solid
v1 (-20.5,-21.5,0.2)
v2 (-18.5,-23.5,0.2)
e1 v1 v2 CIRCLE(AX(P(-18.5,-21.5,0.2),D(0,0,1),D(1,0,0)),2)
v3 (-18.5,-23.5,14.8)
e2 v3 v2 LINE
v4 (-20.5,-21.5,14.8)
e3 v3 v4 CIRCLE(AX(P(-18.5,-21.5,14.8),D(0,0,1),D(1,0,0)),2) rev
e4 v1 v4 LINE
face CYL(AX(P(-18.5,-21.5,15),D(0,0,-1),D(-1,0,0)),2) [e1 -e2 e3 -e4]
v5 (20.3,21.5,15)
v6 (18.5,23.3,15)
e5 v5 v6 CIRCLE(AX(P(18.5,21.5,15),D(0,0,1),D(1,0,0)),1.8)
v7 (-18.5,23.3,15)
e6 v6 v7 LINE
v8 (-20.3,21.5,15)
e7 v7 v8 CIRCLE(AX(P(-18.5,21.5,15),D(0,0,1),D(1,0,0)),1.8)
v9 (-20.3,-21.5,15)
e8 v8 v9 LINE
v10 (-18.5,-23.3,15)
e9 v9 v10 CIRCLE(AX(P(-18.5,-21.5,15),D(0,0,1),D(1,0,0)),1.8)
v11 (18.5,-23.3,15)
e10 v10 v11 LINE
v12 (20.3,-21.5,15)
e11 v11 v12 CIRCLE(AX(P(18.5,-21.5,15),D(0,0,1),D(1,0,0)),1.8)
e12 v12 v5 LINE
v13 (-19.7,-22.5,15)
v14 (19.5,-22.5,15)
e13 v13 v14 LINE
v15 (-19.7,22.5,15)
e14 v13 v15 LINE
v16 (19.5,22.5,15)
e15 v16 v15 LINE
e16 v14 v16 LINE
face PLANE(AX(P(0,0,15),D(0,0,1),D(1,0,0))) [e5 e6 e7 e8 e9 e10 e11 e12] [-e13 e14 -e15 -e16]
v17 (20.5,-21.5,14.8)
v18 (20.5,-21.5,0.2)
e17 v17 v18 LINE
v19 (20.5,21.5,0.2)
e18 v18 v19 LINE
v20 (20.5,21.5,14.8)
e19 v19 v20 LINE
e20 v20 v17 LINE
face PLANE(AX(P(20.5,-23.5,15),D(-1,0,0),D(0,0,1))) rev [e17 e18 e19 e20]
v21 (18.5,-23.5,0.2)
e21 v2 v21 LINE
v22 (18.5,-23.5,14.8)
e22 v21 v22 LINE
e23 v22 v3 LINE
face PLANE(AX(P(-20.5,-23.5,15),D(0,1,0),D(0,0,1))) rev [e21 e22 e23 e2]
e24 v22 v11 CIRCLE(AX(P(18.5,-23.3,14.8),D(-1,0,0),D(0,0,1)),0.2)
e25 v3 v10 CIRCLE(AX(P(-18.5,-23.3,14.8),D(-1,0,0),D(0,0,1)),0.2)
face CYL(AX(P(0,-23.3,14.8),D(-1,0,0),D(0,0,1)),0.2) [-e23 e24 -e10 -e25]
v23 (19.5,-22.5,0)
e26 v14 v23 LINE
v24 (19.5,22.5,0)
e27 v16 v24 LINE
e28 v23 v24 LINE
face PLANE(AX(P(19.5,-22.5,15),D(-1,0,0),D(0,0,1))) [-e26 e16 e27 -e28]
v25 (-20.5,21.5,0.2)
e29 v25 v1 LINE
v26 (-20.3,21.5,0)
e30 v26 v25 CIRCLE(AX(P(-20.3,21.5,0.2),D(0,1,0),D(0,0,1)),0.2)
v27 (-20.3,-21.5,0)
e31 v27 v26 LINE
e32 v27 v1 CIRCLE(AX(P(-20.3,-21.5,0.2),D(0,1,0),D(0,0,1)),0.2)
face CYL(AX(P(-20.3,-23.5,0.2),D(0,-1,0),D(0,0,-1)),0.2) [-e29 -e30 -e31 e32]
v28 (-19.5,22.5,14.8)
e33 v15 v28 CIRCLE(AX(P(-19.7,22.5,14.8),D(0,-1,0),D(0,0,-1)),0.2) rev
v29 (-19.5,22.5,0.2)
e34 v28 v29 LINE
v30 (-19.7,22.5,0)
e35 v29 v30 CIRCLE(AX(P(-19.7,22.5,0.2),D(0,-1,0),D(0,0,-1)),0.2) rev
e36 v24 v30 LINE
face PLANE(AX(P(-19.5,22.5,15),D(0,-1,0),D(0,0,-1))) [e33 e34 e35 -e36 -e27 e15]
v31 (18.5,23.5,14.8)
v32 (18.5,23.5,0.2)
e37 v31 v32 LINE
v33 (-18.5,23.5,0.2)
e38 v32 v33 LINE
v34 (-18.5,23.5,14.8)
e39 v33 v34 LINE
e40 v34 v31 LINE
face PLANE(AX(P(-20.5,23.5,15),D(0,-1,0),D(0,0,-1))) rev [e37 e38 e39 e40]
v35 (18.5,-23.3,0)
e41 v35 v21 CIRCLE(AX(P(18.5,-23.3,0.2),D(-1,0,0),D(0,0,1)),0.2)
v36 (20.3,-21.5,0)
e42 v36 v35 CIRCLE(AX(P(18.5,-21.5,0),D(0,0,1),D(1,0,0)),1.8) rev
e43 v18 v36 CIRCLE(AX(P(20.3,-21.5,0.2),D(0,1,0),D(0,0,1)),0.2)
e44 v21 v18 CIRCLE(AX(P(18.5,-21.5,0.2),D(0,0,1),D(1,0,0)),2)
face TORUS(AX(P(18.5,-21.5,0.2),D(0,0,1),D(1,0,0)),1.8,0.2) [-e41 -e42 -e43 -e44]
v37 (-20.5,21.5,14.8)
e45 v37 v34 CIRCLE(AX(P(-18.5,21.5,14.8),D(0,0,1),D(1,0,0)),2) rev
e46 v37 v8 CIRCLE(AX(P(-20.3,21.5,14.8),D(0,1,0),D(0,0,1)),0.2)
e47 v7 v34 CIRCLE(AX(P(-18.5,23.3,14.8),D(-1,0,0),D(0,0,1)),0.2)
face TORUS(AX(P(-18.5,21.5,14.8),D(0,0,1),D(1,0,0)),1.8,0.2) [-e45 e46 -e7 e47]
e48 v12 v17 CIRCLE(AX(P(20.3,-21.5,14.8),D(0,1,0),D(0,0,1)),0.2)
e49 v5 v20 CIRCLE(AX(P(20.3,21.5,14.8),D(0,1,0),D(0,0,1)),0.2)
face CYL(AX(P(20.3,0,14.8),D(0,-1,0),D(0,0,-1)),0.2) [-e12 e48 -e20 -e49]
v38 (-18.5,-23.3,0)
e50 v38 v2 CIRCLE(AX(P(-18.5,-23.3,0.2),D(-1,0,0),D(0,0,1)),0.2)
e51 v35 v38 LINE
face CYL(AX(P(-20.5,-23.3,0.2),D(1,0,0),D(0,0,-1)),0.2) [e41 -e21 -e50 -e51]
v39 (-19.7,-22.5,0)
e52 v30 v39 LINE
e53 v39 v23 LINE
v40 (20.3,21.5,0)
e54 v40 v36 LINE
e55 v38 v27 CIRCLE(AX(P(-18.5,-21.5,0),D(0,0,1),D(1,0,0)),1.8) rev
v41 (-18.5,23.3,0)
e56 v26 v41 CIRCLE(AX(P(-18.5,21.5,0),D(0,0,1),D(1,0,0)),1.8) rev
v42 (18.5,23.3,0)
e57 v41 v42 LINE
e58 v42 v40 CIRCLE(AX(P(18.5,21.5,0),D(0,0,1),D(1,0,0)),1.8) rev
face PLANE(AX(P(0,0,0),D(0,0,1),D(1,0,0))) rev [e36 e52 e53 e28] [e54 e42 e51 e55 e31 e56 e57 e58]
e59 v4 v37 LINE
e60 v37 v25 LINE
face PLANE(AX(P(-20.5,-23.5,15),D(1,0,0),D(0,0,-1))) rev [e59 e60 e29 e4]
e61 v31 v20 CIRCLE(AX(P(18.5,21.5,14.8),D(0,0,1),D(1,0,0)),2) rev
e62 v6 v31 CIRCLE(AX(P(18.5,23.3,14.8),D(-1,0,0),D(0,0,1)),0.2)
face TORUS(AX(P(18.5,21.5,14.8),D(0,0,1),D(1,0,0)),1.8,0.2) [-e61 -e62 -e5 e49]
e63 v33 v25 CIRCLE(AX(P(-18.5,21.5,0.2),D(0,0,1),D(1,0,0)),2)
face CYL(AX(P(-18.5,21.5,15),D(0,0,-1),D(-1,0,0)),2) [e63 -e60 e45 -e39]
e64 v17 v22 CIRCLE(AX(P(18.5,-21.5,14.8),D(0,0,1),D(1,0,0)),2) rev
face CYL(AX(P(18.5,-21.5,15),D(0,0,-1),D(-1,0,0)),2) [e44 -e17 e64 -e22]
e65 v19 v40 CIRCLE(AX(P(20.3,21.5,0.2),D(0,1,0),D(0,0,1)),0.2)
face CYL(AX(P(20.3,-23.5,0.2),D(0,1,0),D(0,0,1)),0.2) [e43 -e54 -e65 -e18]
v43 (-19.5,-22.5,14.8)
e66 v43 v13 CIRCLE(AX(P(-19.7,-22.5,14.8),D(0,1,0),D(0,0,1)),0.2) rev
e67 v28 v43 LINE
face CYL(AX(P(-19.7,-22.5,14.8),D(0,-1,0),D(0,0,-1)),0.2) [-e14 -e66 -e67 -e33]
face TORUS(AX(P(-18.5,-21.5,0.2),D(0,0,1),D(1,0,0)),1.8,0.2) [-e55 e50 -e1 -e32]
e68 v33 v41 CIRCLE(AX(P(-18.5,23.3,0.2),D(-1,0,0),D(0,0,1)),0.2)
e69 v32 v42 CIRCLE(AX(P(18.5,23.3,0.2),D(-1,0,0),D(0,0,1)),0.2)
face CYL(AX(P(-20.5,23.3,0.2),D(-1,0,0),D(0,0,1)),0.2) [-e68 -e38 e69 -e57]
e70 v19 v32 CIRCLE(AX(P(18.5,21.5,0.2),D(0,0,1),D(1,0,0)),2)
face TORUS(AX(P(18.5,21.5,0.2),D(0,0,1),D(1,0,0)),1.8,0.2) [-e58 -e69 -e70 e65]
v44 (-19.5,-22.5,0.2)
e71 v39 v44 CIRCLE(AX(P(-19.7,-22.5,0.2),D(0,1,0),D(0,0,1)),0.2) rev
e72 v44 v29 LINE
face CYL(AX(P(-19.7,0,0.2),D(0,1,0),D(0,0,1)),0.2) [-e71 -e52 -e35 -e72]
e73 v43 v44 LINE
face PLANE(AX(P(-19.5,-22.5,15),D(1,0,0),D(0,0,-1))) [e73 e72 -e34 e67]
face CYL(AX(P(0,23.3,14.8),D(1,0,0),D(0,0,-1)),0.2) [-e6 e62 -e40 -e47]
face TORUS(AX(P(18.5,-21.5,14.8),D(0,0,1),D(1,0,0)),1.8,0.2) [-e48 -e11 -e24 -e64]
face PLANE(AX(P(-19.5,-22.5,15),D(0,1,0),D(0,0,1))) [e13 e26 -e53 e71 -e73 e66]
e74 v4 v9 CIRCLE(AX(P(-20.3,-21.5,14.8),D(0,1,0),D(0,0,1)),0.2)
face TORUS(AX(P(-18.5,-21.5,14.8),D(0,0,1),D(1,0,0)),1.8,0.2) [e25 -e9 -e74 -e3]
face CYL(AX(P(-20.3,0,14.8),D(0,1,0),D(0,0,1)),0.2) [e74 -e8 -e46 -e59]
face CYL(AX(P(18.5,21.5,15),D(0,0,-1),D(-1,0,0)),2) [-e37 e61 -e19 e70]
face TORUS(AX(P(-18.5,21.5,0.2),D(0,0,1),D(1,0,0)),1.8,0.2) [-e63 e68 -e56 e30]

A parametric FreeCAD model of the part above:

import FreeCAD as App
import Part
import Sketcher

V = App.Vector


def edges_at(feature, points):
    """Names of the edges that pass closest to the given points."""
    edges = feature.Shape.Edges
    near = lambda p: min(range(len(edges)), key=lambda i: edges[i].distToShape(Part.Vertex(*p))[0])
    return sorted({f"Edge{near(p) + 1}" for p in points})

doc = App.newDocument("Part")
body = doc.addObject("PartDesign::Body", "Body")

sketch1 = body.newObject("Sketcher::SketchObject", "Sketch")
sketch1.AttachmentSupport = (doc.getObject("XY_Plane"), [""])
sketch1.MapMode = "FlatFace"
sketch1.addGeometry(Part.LineSegment(V(-20, 24, 0), V(-20, -24, 0)), False)
sketch1.addGeometry(Part.LineSegment(V(-20, -24, 0), V(20, -24, 0)), False)
sketch1.addGeometry(Part.LineSegment(V(20, -24, 0), V(20, 24, 0)), False)
sketch1.addGeometry(Part.LineSegment(V(20, 24, 0), V(-20, 24, 0)), False)
sketch1.addGeometry(Part.LineSegment(V(20, -22, 0), V(-20, -22, 0)), False)
sketch1.addGeometry(Part.LineSegment(V(-20, -22, 0), V(-20, 22, 0)), False)
sketch1.addGeometry(Part.LineSegment(V(-20, 22, 0), V(20, 22, 0)), False)
sketch1.addGeometry(Part.LineSegment(V(20, 22, 0), V(20, -22, 0)), False)
sketch1.addConstraint(Sketcher.Constraint("Coincident", 0, 2, 1, 1))
sketch1.addConstraint(Sketcher.Constraint("Coincident", 1, 2, 2, 1))
sketch1.addConstraint(Sketcher.Constraint("Coincident", 2, 2, 3, 1))
sketch1.addConstraint(Sketcher.Constraint("Coincident", 3, 2, 0, 1))
sketch1.addConstraint(Sketcher.Constraint("Coincident", 4, 2, 5, 1))
sketch1.addConstraint(Sketcher.Constraint("Coincident", 5, 2, 6, 1))
sketch1.addConstraint(Sketcher.Constraint("Coincident", 6, 2, 7, 1))
sketch1.addConstraint(Sketcher.Constraint("Coincident", 7, 2, 4, 1))
sketch1.addConstraint(Sketcher.Constraint("Vertical", 0))
sketch1.addConstraint(Sketcher.Constraint("Horizontal", 1))
sketch1.addConstraint(Sketcher.Constraint("Vertical", 2))
sketch1.addConstraint(Sketcher.Constraint("Horizontal", 3))
sketch1.addConstraint(Sketcher.Constraint("Horizontal", 4))
sketch1.addConstraint(Sketcher.Constraint("Vertical", 5))
sketch1.addConstraint(Sketcher.Constraint("Horizontal", 6))
sketch1.addConstraint(Sketcher.Constraint("Vertical", 7))
sketch1.addConstraint(Sketcher.Constraint("Symmetric", 0, 2, 2, 2, -1, 1))
sketch1.addConstraint(Sketcher.Constraint("Symmetric", 4, 2, 6, 2, -1, 1))
sketch1.addConstraint(Sketcher.Constraint("DistanceX", 1, 1, 1, 2, 41.0))
sketch1.addConstraint(Sketcher.Constraint("DistanceX", 4, 2, 4, 1, 39.0))
sketch1.addConstraint(Sketcher.Constraint("DistanceY", 0, 2, 0, 1, 47.0))
sketch1.addConstraint(Sketcher.Constraint("DistanceY", 5, 1, 5, 2, 45.0))
pad1 = body.newObject("PartDesign::Pad", "Pad")
pad1.Profile = sketch1
pad1.Length = 15
doc.recompute()

fillet = body.newObject("PartDesign::Fillet", "Fillet")
fillet.Base = (pad1, edges_at(pad1, [
    (-20.5, -23.5, 7.5),
    (-20.5, 23.5, 7.5),
    (20.5, 23.5, 7.5),
    (20.5, -23.5, 7.5),
]))
fillet.Radius = 2
doc.recompute()

fillet2 = body.newObject("PartDesign::Fillet", "Fillet001")
fillet2.Base = (fillet, edges_at(fillet, [
    (-19.5, 0, 0),
    (-19.5, 0, 15),
    (0, -23.5, 0),
    (0, -23.5, 15),
    (-20.5, 0, 0),
    (0, 23.5, 0),
    (20.5, 0, 0),
    (-19.914, 22.914, 0),
    (19.914, 22.914, 0),
    (19.914, -22.914, 0),
    (-19.914, -22.914, 0),
    (-20.5, 0, 15),
    (20.5, 0, 15),
    (0, 23.5, 15),
    (-19.914, 22.914, 15),
    (19.914, 22.914, 15),
    (19.914, -22.914, 15),
    (-19.914, -22.914, 15),
]))
fillet2.Radius = 0.2

doc.recompute()
